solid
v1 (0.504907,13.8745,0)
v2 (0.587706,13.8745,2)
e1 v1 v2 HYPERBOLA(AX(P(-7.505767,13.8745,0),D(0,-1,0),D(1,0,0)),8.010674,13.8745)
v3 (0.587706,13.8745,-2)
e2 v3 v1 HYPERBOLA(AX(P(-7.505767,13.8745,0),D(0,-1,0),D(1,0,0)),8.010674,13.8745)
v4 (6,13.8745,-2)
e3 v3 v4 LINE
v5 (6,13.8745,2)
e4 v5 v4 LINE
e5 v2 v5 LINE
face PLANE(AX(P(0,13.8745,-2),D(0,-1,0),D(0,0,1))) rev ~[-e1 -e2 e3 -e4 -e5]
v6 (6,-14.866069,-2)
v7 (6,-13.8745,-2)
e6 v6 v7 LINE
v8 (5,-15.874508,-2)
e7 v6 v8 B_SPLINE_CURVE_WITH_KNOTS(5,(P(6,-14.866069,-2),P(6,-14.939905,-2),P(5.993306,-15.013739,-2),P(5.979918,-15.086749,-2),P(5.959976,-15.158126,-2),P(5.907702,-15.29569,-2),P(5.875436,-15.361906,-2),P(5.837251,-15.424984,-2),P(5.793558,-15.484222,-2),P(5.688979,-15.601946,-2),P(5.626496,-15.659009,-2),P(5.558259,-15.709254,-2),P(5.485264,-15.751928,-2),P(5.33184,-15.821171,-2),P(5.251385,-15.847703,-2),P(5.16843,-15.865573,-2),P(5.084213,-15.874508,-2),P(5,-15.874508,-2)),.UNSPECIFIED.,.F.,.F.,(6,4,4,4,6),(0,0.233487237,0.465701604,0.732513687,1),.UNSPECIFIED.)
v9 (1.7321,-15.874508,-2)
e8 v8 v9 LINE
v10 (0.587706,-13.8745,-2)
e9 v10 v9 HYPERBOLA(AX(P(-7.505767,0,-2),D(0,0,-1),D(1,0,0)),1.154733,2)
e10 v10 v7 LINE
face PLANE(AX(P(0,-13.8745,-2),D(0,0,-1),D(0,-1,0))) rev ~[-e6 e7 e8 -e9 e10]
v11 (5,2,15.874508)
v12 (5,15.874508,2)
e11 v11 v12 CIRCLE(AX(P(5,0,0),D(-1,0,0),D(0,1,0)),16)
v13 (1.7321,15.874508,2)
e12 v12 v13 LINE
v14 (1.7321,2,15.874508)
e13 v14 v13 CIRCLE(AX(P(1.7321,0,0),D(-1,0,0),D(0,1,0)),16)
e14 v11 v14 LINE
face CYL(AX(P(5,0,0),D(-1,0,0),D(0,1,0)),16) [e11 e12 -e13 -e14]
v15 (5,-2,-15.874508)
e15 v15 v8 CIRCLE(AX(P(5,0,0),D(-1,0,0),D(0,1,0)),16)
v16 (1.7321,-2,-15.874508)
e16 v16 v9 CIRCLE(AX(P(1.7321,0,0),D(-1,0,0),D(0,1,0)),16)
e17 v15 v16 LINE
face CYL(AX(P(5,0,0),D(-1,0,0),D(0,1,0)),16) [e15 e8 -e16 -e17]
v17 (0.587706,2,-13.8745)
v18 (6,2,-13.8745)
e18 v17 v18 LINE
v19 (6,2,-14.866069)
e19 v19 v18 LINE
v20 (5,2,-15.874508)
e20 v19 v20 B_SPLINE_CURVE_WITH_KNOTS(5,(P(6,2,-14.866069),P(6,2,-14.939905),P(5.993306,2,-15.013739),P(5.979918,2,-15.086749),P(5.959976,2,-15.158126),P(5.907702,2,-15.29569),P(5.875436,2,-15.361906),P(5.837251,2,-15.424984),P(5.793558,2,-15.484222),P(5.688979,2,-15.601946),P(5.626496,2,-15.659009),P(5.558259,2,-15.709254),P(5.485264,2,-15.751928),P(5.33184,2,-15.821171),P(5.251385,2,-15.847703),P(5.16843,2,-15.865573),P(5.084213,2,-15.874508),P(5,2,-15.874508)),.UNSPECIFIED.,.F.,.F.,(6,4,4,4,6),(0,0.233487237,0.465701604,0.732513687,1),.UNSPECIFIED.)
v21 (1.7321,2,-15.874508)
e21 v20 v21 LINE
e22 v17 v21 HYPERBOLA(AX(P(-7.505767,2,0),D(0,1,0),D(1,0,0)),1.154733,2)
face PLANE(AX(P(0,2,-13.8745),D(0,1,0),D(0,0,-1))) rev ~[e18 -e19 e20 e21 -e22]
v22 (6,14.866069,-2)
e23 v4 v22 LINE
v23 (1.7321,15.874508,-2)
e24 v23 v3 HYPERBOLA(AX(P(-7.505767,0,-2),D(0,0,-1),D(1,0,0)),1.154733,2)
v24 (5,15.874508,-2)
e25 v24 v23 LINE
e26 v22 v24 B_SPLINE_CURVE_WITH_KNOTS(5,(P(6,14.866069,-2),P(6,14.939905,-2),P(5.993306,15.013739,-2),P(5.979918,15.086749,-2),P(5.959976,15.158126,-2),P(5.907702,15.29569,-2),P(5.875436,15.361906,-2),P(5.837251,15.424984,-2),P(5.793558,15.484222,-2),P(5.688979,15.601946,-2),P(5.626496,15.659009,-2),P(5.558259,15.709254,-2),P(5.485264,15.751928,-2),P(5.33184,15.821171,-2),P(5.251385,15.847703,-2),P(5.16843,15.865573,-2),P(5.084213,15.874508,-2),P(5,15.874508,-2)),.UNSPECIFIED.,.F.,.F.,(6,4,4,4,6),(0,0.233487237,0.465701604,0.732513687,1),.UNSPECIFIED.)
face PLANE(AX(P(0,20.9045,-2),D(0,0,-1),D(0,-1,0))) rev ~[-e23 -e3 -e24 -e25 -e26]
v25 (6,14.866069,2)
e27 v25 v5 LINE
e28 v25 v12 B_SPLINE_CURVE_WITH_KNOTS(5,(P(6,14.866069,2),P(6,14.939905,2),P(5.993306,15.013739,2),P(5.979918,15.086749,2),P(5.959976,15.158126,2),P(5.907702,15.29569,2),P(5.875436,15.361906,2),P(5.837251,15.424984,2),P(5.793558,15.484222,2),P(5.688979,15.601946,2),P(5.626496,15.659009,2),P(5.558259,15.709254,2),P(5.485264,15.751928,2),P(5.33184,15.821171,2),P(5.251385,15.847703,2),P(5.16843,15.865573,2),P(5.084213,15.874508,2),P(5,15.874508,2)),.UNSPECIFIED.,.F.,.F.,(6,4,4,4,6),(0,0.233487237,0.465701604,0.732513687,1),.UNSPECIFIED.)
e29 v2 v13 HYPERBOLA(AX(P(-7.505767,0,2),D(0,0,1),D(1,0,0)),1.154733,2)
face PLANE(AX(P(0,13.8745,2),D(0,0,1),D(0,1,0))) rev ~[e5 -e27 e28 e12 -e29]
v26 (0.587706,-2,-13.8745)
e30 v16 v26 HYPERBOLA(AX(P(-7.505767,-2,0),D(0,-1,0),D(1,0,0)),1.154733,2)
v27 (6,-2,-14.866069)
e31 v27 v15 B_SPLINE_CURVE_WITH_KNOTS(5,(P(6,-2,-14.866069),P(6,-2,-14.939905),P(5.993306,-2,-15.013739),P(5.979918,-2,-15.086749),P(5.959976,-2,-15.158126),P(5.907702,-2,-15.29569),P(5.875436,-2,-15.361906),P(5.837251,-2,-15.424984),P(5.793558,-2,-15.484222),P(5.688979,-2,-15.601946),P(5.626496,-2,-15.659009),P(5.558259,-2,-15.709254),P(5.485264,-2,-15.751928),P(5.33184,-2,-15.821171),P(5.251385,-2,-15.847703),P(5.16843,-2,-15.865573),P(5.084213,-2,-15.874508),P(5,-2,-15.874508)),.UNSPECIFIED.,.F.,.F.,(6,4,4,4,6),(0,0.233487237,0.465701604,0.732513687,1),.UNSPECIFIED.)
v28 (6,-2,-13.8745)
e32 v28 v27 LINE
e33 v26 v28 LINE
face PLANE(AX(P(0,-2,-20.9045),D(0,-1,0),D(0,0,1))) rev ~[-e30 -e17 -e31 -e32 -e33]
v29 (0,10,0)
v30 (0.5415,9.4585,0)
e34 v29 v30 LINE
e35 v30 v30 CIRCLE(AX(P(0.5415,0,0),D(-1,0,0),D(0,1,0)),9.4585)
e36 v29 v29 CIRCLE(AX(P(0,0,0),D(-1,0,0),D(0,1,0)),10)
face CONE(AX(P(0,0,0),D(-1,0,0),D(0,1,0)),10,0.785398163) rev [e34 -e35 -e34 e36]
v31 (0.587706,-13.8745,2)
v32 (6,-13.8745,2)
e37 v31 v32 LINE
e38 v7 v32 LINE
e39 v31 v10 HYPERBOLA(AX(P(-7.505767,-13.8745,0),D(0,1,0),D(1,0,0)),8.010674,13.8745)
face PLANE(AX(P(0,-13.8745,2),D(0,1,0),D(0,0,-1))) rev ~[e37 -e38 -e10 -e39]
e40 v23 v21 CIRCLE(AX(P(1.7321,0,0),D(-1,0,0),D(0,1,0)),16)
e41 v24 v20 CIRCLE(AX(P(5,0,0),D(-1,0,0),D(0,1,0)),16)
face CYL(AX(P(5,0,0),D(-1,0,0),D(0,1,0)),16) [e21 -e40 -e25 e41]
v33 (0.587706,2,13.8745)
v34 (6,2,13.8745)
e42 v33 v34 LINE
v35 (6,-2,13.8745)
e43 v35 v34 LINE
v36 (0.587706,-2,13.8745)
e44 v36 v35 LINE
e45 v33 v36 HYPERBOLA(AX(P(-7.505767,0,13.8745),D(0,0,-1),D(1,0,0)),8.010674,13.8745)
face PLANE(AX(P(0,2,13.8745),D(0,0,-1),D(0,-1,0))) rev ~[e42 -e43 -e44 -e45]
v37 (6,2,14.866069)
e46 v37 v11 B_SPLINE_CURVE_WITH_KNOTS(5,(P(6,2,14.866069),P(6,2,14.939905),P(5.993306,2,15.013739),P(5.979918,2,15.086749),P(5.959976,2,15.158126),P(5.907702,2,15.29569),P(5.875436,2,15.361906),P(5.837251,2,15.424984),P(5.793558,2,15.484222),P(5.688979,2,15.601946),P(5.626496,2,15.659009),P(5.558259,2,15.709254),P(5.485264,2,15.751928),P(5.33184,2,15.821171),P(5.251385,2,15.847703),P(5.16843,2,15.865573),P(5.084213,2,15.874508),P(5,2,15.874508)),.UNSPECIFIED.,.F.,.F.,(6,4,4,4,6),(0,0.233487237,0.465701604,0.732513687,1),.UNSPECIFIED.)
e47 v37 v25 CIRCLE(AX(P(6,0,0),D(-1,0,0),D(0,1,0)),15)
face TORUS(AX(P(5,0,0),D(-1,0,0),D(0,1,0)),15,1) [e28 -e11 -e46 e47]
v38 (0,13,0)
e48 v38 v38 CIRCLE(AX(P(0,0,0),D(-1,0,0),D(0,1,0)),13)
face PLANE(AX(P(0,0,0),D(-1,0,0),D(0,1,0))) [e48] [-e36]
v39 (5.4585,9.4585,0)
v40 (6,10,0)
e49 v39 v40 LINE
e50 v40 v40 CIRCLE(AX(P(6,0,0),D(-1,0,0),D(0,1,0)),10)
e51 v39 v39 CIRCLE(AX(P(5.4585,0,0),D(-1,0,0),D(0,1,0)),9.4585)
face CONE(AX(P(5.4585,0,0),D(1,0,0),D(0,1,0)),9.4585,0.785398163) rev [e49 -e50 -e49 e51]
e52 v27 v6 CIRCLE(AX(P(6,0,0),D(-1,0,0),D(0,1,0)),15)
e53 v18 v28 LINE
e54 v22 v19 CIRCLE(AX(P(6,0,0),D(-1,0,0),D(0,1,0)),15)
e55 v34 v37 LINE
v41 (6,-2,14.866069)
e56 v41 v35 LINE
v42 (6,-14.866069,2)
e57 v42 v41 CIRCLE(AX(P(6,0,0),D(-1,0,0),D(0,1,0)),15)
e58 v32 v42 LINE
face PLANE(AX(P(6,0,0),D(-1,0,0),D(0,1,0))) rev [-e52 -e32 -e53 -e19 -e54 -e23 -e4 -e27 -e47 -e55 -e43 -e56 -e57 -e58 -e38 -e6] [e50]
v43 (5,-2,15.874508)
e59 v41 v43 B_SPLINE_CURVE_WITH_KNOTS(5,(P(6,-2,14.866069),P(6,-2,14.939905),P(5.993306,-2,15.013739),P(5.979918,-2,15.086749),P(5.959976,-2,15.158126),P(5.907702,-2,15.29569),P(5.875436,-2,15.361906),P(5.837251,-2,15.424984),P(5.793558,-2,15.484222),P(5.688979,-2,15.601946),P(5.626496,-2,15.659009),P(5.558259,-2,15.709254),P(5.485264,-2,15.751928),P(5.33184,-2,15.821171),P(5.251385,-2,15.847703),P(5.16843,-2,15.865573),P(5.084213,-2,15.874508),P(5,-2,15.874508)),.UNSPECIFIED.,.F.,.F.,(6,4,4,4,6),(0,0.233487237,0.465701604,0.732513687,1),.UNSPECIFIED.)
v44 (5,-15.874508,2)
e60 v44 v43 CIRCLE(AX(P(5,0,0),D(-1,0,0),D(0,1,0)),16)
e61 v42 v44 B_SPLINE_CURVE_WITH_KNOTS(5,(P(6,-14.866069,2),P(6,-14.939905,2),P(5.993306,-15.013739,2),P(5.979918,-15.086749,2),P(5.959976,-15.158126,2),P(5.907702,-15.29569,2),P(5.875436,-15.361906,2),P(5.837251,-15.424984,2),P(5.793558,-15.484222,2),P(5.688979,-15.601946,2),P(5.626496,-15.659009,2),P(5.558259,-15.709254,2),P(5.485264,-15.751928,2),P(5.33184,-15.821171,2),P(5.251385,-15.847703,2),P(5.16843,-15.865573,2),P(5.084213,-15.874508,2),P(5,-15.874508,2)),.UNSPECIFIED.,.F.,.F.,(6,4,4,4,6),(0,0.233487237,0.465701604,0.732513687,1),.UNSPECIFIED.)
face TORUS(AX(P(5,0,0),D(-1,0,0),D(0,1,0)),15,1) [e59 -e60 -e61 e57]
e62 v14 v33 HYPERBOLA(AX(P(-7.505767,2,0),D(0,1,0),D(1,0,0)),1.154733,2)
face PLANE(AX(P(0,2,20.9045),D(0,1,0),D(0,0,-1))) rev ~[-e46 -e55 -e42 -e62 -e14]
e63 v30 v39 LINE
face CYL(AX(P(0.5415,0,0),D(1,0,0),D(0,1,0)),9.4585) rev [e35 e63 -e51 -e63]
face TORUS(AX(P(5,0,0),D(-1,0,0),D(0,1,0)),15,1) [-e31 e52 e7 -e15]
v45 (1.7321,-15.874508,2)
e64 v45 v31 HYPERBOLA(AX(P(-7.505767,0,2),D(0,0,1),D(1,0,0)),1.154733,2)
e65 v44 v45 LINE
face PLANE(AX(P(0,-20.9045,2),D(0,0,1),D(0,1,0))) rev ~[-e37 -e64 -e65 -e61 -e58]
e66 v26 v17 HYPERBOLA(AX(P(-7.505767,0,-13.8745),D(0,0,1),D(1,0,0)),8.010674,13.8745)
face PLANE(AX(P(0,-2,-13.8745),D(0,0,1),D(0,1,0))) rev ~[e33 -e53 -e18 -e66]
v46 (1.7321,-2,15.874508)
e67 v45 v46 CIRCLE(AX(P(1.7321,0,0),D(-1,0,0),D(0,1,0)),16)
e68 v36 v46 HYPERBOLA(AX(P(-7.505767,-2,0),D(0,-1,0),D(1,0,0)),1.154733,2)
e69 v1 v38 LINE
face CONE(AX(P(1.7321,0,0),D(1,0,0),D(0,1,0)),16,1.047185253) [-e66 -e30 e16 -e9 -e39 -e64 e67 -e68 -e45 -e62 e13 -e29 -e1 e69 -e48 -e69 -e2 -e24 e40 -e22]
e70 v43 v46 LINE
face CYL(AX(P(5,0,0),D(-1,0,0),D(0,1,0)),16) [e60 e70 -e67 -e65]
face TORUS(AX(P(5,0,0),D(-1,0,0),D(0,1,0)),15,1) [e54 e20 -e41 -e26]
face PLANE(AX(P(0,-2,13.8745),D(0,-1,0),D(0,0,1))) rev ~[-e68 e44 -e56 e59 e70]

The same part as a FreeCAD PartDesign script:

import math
import FreeCAD as App
import Part
import Sketcher
Q = App.Units.Quantity

doc = App.newDocument("Part")
body = doc.addObject("PartDesign::Body", "Body")

# Sketch on XY plane
sketch1 = body.newObject("Sketcher::SketchObject", "Sketch")
sketch1.AttachmentSupport = (doc.getObject("XY_Plane"), [""])
sketch1.MapMode = "FlatFace"
sketch1.addGeometry(Part.LineSegment(App.Vector(0, 13, 0), App.Vector(0, 10, 0)), False)
sketch1.addGeometry(Part.LineSegment(App.Vector(0, 10, 0), App.Vector(0.5, 9.5, 0)), False)
sketch1.addGeometry(Part.LineSegment(App.Vector(0.5, 9.5, 0), App.Vector(5.5, 9.5, 0)), False)
sketch1.addGeometry(Part.LineSegment(App.Vector(5.5, 9.5, 0), App.Vector(6, 10, 0)), False)
sketch1.addGeometry(Part.LineSegment(App.Vector(6, 10, 0), App.Vector(6, 15, 0)), False)
sketch1.addGeometry(Part.ArcOfCircle(Part.Circle(App.Vector(5, 15, 0), App.Vector(0, 0, 1), 1), math.radians(0), math.radians(90)), False)
sketch1.addGeometry(Part.LineSegment(App.Vector(5, 16, 0), App.Vector(1.7, 16, 0)), False)
sketch1.addGeometry(Part.LineSegment(App.Vector(1.7, 16, 0), App.Vector(0, 13, 0)), False)
sketch1.addConstraint(Sketcher.Constraint("Coincident", 0, 2, 1, 1))
sketch1.addConstraint(Sketcher.Constraint("Coincident", 1, 2, 2, 1))
sketch1.addConstraint(Sketcher.Constraint("Coincident", 2, 2, 3, 1))
sketch1.addConstraint(Sketcher.Constraint("Coincident", 3, 2, 4, 1))
sketch1.addConstraint(Sketcher.Constraint("Tangent", 4, 2, 5, 1))
sketch1.addConstraint(Sketcher.Constraint("Tangent", 5, 2, 6, 1))
sketch1.addConstraint(Sketcher.Constraint("Coincident", 6, 2, 7, 1))
sketch1.addConstraint(Sketcher.Constraint("Coincident", 7, 2, 0, 1))
sketch1.addConstraint(Sketcher.Constraint("Vertical", 0))
sketch1.addConstraint(Sketcher.Constraint("Horizontal", 2))
sketch1.addConstraint(Sketcher.Constraint("Vertical", 4))
sketch1.addConstraint(Sketcher.Constraint("Horizontal", 6))
sketch1.addConstraint(Sketcher.Constraint("PointOnObject", 0, 2, -2))
sketch1.addConstraint(Sketcher.Constraint("Perpendicular", 1, 3))
sketch1.addConstraint(Sketcher.Constraint("Horizontal", 0, 2, 3, 2))
sketch1.addConstraint(Sketcher.Constraint("Equal", 1, 3))
sketch1.addConstraint(Sketcher.Constraint("Radius", 5, Q("1 mm")))
sketch1.addConstraint(Sketcher.Constraint("DistanceY", 0, 2, 0, 1, Q("3 mm")))
sketch1.addConstraint(Sketcher.Constraint("DistanceY", 4, 1, 4, 2, Q("5 mm")))
sketch1.addConstraint(Sketcher.Constraint("Angle", 7, Q("-120.0007 deg")))
sketch1.addConstraint(Sketcher.Constraint("DistanceX", -1, 1, 5, 3, Q("5 mm")))
sketch1.addConstraint(Sketcher.Constraint("DistanceY", -1, 1, 5, 3, Q("15 mm")))
sketch1.addConstraint(Sketcher.Constraint("DistanceX", 2, 1, 2, 2, Q("4.917 mm")))
revolution = body.newObject("PartDesign::Revolution", "Revolution")
revolution.Profile = sketch1
revolution.ReferenceAxis = (sketch1, ["H_Axis"])
revolution.Angle = 360

# Sketch on YZ plane
sketch2 = body.newObject("Sketcher::SketchObject", "Sketch001")
sketch2.AttachmentSupport = (doc.getObject("YZ_Plane"), [""])
sketch2.MapMode = "FlatFace"
sketch2.addGeometry(Part.Circle(App.Vector(0, 0, 0), App.Vector(0, 0, 1), 32), False)
sketch2.addGeometry(Part.LineSegment(App.Vector(2, 13.9, 0), App.Vector(2, 20.9, 0)), False)
sketch2.addGeometry(Part.ArcOfCircle(Part.Circle(App.Vector(0, 0, 0), App.Vector(0, 0, 1), 21), math.radians(5), math.radians(85)), False)
sketch2.addGeometry(Part.LineSegment(App.Vector(20.9, 2, 0), App.Vector(13.9, 2, 0)), False)
sketch2.addGeometry(Part.LineSegment(App.Vector(13.9, 2, 0), App.Vector(13.9, -2, 0)), False)
sketch2.addGeometry(Part.LineSegment(App.Vector(13.9, -2, 0), App.Vector(20.9, -2, 0)), False)
sketch2.addGeometry(Part.ArcOfCircle(Part.Circle(App.Vector(0, 0, 0), App.Vector(0, 0, 1), 21), math.radians(-85), math.radians(-5)), False)
sketch2.addGeometry(Part.LineSegment(App.Vector(2, -20.9, 0), App.Vector(2, -13.9, 0)), False)
sketch2.addGeometry(Part.LineSegment(App.Vector(2, -13.9, 0), App.Vector(-2, -13.9, 0)), False)
sketch2.addGeometry(Part.LineSegment(App.Vector(-2, -13.9, 0), App.Vector(-2, -20.9, 0)), False)
sketch2.addGeometry(Part.ArcOfCircle(Part.Circle(App.Vector(0, 0, 0), App.Vector(0, 0, 1), 21), math.radians(-175), math.radians(-95)), False)
sketch2.addGeometry(Part.LineSegment(App.Vector(-20.9, -2, 0), App.Vector(-13.9, -2, 0)), False)
sketch2.addGeometry(Part.LineSegment(App.Vector(-13.9, -2, 0), App.Vector(-13.9, 2, 0)), False)
sketch2.addGeometry(Part.LineSegment(App.Vector(-13.9, 2, 0), App.Vector(-20.9, 2, 0)), False)
sketch2.addGeometry(Part.ArcOfCircle(Part.Circle(App.Vector(0, 0, 0), App.Vector(0, 0, 1), 21), math.radians(95), math.radians(175)), False)
sketch2.addGeometry(Part.LineSegment(App.Vector(-2, 20.9, 0), App.Vector(-2, 13.9, 0)), False)
sketch2.addGeometry(Part.LineSegment(App.Vector(-2, 13.9, 0), App.Vector(2, 13.9, 0)), False)
sketch2.addConstraint(Sketcher.Constraint("Coincident", 1, 2, 2, 2))
sketch2.addConstraint(Sketcher.Constraint("Coincident", 2, 1, 3, 1))
sketch2.addConstraint(Sketcher.Constraint("Coincident", 3, 2, 4, 1))
sketch2.addConstraint(Sketcher.Constraint("Coincident", 4, 2, 5, 1))
sketch2.addConstraint(Sketcher.Constraint("Coincident", 5, 2, 6, 2))
sketch2.addConstraint(Sketcher.Constraint("Coincident", 6, 1, 7, 1))
sketch2.addConstraint(Sketcher.Constraint("Coincident", 7, 2, 8, 1))
sketch2.addConstraint(Sketcher.Constraint("Coincident", 8, 2, 9, 1))
sketch2.addConstraint(Sketcher.Constraint("Coincident", 9, 2, 10, 2))
sketch2.addConstraint(Sketcher.Constraint("Coincident", 10, 1, 11, 1))
sketch2.addConstraint(Sketcher.Constraint("Coincident", 11, 2, 12, 1))
sketch2.addConstraint(Sketcher.Constraint("Coincident", 12, 2, 13, 1))
sketch2.addConstraint(Sketcher.Constraint("Coincident", 13, 2, 14, 2))
sketch2.addConstraint(Sketcher.Constraint("Coincident", 14, 1, 15, 1))
sketch2.addConstraint(Sketcher.Constraint("Coincident", 15, 2, 16, 1))
sketch2.addConstraint(Sketcher.Constraint("Coincident", 16, 2, 1, 1))
sketch2.addConstraint(Sketcher.Constraint("Vertical", 1))
sketch2.addConstraint(Sketcher.Constraint("Horizontal", 3))
sketch2.addConstraint(Sketcher.Constraint("Vertical", 4))
sketch2.addConstraint(Sketcher.Constraint("Horizontal", 5))
sketch2.addConstraint(Sketcher.Constraint("Vertical", 7))
sketch2.addConstraint(Sketcher.Constraint("Horizontal", 8))
sketch2.addConstraint(Sketcher.Constraint("Vertical", 9))
sketch2.addConstraint(Sketcher.Constraint("Horizontal", 11))
sketch2.addConstraint(Sketcher.Constraint("Vertical", 12))
sketch2.addConstraint(Sketcher.Constraint("Horizontal", 13))
sketch2.addConstraint(Sketcher.Constraint("Vertical", 15))
sketch2.addConstraint(Sketcher.Constraint("Horizontal", 16))
sketch2.addConstraint(Sketcher.Constraint("Coincident", 0, 3, -1, 1))
sketch2.addConstraint(Sketcher.Constraint("Coincident", 2, 3, -1, 1))
sketch2.addConstraint(Sketcher.Constraint("Coincident", 6, 3, -1, 1))
sketch2.addConstraint(Sketcher.Constraint("Coincident", 10, 3, -1, 1))
sketch2.addConstraint(Sketcher.Constraint("Coincident", 14, 3, -1, 1))
sketch2.addConstraint(Sketcher.Constraint("Equal", 2, 6))
sketch2.addConstraint(Sketcher.Constraint("Equal", 6, 10))
sketch2.addConstraint(Sketcher.Constraint("Equal", 10, 14))
sketch2.addConstraint(Sketcher.Constraint("Symmetric", 3, 2, 11, 2, -1, 1))
sketch2.addConstraint(Sketcher.Constraint("Symmetric", 7, 2, 15, 2, -1, 1))
sketch2.addConstraint(Sketcher.Constraint("Horizontal", 6, 1, 9, 2))
sketch2.addConstraint(Sketcher.Constraint("Horizontal", 5, 2, 10, 1))
sketch2.addConstraint(Sketcher.Constraint("Horizontal", 3, 2, 12, 2))
sketch2.addConstraint(Sketcher.Constraint("Horizontal", 1, 2, 14, 1))
sketch2.addConstraint(Sketcher.Constraint("Equal", 13, 1))
sketch2.addConstraint(Sketcher.Constraint("Equal", 16, 4))
sketch2.addConstraint(Sketcher.Constraint("Diameter", 0, Q("64 mm")))
sketch2.addConstraint(Sketcher.Constraint("Radius", 2, Q("21 mm")))
sketch2.addConstraint(Sketcher.Constraint("DistanceX", 8, 2, 8, 1, Q("4 mm")))
sketch2.addConstraint(Sketcher.Constraint("DistanceX", 3, 2, 3, 1, Q("7.03 mm")))
pocket1 = body.newObject("PartDesign::Pocket", "Pocket")
pocket1.Profile = sketch2
pocket1.Length = 12
pocket1.Reversed = True

doc.recompute()
